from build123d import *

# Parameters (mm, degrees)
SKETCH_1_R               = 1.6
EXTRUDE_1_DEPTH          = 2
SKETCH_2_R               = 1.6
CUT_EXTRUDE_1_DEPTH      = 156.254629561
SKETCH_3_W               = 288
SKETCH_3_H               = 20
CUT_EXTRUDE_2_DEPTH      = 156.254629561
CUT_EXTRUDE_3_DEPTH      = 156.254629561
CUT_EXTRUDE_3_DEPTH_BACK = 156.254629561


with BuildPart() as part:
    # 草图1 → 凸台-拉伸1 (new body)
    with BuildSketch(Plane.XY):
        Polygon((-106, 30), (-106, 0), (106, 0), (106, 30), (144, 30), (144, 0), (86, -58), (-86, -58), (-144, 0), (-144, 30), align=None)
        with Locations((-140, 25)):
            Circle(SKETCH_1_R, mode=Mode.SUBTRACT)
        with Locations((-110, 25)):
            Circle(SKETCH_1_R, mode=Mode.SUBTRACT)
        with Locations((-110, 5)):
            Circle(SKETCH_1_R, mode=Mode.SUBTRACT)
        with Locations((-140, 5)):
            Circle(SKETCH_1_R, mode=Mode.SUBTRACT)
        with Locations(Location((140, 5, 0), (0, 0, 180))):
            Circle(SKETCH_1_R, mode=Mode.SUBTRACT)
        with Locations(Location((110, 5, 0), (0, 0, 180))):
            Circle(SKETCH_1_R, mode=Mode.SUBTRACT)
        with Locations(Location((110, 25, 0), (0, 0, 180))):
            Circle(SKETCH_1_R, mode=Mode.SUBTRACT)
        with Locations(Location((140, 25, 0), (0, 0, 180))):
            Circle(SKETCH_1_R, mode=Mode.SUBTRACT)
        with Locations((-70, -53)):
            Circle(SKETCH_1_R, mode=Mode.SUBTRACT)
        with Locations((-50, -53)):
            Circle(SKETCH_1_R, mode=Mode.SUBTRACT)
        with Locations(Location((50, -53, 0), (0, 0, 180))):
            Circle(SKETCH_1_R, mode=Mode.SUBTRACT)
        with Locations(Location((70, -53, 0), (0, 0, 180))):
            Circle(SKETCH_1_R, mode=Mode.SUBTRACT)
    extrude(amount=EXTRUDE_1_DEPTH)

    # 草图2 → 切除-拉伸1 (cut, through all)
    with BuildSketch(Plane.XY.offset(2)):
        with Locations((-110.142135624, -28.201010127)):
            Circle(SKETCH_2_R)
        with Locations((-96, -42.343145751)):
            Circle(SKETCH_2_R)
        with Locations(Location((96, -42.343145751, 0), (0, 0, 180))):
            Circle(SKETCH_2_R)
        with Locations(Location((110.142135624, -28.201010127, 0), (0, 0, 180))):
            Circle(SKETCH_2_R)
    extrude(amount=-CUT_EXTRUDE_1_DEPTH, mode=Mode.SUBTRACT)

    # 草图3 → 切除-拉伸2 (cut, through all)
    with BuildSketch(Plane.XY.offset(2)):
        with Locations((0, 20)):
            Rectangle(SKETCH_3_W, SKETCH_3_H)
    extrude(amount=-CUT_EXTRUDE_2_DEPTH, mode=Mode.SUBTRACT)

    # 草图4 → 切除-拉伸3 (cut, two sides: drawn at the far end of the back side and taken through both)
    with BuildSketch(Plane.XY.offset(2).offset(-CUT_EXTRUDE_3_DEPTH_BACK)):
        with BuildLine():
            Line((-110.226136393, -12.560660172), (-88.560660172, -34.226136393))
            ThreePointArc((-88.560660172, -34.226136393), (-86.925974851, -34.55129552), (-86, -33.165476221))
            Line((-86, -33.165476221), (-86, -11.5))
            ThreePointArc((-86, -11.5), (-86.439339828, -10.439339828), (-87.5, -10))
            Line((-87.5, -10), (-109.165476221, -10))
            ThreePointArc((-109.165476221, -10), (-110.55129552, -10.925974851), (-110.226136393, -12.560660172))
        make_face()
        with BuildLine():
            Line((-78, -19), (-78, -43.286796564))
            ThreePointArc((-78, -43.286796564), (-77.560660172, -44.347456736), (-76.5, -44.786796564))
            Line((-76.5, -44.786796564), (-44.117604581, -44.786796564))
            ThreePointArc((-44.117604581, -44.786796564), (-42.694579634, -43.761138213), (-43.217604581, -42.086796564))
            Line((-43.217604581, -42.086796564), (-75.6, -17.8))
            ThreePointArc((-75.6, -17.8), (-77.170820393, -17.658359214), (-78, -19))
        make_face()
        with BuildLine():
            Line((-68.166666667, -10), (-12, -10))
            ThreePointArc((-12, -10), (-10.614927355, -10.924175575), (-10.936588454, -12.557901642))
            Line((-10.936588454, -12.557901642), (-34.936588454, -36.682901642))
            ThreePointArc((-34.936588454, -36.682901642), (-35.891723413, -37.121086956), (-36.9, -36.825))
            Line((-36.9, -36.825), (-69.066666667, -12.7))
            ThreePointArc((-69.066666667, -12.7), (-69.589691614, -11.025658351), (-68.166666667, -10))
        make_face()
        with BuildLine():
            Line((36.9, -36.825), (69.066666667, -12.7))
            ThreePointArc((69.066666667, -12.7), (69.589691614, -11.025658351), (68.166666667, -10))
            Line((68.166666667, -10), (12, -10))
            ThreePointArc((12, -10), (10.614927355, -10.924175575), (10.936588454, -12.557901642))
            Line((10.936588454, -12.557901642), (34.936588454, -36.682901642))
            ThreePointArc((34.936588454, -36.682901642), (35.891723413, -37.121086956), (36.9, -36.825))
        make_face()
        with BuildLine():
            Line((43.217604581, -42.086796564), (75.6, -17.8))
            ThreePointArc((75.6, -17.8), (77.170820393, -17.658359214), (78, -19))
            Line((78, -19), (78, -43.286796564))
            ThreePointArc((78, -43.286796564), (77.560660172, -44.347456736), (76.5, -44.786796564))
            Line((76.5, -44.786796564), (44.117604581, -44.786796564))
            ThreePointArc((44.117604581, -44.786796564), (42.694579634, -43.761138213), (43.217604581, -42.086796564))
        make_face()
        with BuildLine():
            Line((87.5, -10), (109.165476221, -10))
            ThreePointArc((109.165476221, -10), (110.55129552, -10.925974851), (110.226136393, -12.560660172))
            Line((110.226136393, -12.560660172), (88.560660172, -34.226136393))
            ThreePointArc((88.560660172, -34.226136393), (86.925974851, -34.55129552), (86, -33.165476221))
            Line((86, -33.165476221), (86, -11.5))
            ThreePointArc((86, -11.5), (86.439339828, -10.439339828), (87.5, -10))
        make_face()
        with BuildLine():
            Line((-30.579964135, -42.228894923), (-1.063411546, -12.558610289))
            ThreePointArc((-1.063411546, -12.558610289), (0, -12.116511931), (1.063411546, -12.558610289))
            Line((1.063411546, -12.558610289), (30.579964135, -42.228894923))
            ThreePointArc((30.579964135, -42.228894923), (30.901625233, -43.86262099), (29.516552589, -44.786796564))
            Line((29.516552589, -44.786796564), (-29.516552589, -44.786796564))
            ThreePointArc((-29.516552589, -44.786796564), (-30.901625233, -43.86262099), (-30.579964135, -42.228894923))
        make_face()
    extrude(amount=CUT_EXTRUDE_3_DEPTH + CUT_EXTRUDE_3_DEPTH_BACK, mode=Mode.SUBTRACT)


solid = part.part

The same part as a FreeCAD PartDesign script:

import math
import FreeCAD as App
import Part
import Sketcher
Q = App.Units.Quantity


def add_polygon(sketch, points):
    """Adds a closed chain of lines whose ends are joined by coincident constraints."""
    first, n = sketch.GeometryCount, len(points)
    for a, b in zip(points, points[1:] + points[:1]):
        sketch.addGeometry(Part.LineSegment(App.Vector(*a, 0), App.Vector(*b, 0)), False)
    for i in range(n):
        sketch.addConstraint(Sketcher.Constraint("Coincident", first + i, 2, first + (i + 1) % n, 1))

doc = App.newDocument("Part")
params = doc.addObject("Spreadsheet::Sheet", "Params")
for row, (alias, value) in enumerate([
    ("sketch1_diameter", "3.2 mm"),
    ("sketch1_width", "38 mm"),
    ("sketch1_width2", "172 mm"),
    ("sketch1_width3", "212 mm"),
    ("sketch1_height", "30 mm"),
    ("pad1_length", "2 mm"),
    ("sketch2_diameter", "3.2 mm"),
    ("sketch3_width", "288 mm"),
    ("sketch3_height", "20 mm"),
    ("sketch4_radius", "1.5 mm"),
], start=1):
    params.set(f"A{row}", alias)
    params.set(f"B{row}", "=" + value)
    params.setAlias(f"B{row}", alias)

body = doc.addObject("PartDesign::Body", "Body")

sketch1 = body.newObject("Sketcher::SketchObject", "Sketch")
sketch1.AttachmentSupport = (doc.getObject("XY_Plane"), [""])
sketch1.MapMode = "FlatFace"
add_polygon(sketch1, [(-106, 0), (-106, 30), (-144, 30), (-144, 0), (-86, -58), (86, -58), (144, 0), (144, 30), (106, 30), (106, 0)])
sketch1.addGeometry(Part.Circle(App.Vector(70, -53, 0), App.Vector(0, 0, 1), 1.6), False)
sketch1.addGeometry(Part.Circle(App.Vector(50, -53, 0), App.Vector(0, 0, 1), 1.6), False)
sketch1.addGeometry(Part.Circle(App.Vector(-50, -53, 0), App.Vector(0, 0, 1), 1.6), False)
sketch1.addGeometry(Part.Circle(App.Vector(-70, -53, 0), App.Vector(0, 0, 1), 1.6), False)
sketch1.addGeometry(Part.Circle(App.Vector(140, 5, 0), App.Vector(0, 0, 1), 1.6), False)
sketch1.addGeometry(Part.Circle(App.Vector(110, 5, 0), App.Vector(0, 0, 1), 1.6), False)
sketch1.addGeometry(Part.Circle(App.Vector(140, 25, 0), App.Vector(0, 0, 1), 1.6), False)
sketch1.addGeometry(Part.Circle(App.Vector(110, 25, 0), App.Vector(0, 0, 1), 1.6), False)
sketch1.addGeometry(Part.Circle(App.Vector(-110, 5, 0), App.Vector(0, 0, 1), 1.6), False)
sketch1.addGeometry(Part.Circle(App.Vector(-140, 5, 0), App.Vector(0, 0, 1), 1.6), False)
sketch1.addGeometry(Part.Circle(App.Vector(-110, 25, 0), App.Vector(0, 0, 1), 1.6), False)
sketch1.addGeometry(Part.Circle(App.Vector(-140, 25, 0), App.Vector(0, 0, 1), 1.6), False)
sketch1.addConstraint([
    Sketcher.Constraint("Vertical", 0),
    Sketcher.Constraint("Horizontal", 1),
    Sketcher.Constraint("Vertical", 2),
    Sketcher.Constraint("Horizontal", 4),
    Sketcher.Constraint("Vertical", 6),
    Sketcher.Constraint("Horizontal", 7),
    Sketcher.Constraint("Vertical", 8),
    Sketcher.Constraint("Horizontal", 9),
    Sketcher.Constraint("Equal", 10, 11),
    Sketcher.Constraint("Equal", 11, 12),
    Sketcher.Constraint("Equal", 12, 13),
    Sketcher.Constraint("Equal", 13, 14),
    Sketcher.Constraint("Equal", 14, 15),
    Sketcher.Constraint("Equal", 15, 16),
    Sketcher.Constraint("Equal", 16, 17),
    Sketcher.Constraint("Equal", 17, 18),
    Sketcher.Constraint("Equal", 18, 19),
    Sketcher.Constraint("Equal", 19, 20),
    Sketcher.Constraint("Equal", 20, 21),
    Sketcher.Constraint("Symmetric", 2, 2, 5, 2, -1, 1),
    Sketcher.Constraint("Symmetric", 8, 2, 9, 2, -1, 1),
    Sketcher.Constraint("Symmetric", 11, 3, 12, 3, -2),
    Sketcher.Constraint("Symmetric", 10, 3, 13, 3, -2),
    Sketcher.Constraint("Symmetric", 15, 3, 18, 3, -2),
    Sketcher.Constraint("Symmetric", 14, 3, 19, 3, -2),
    Sketcher.Constraint("Symmetric", 17, 3, 20, 3, -2),
    Sketcher.Constraint("Symmetric", 16, 3, 21, 3, -2),
    Sketcher.Constraint("PointOnObject", 2, 2, -1),
    Sketcher.Constraint("Perpendicular", 3, 5),
    Sketcher.Constraint("Horizontal", 10, 3, 11, 3),
    Sketcher.Constraint("Horizontal", 14, 3, 15, 3),
    Sketcher.Constraint("Horizontal", 16, 3, 17, 3),
    Sketcher.Constraint("Horizontal", 1, 2, 6, 2),
    Sketcher.Constraint("Vertical", 14, 3, 16, 3),
    Sketcher.Constraint("Vertical", 15, 3, 17, 3),
    Sketcher.Constraint("Equal", 3, 5),
    Sketcher.Constraint("Diameter", 10, Q("3.2 mm")),
    Sketcher.Constraint("DistanceX", 1, 2, 1, 1, Q("38 mm")),
    Sketcher.Constraint("DistanceX", 4, 1, 4, 2, Q("172 mm")),
    Sketcher.Constraint("DistanceX", 9, 2, 9, 1, Q("212 mm")),
    Sketcher.Constraint("DistanceY", 0, 1, 0, 2, Q("30 mm")),
    Sketcher.Constraint("DistanceX", -1, 1, 10, 3, Q("70 mm")),
    Sketcher.Constraint("DistanceY", 10, 3, -1, 1, Q("53 mm")),
    Sketcher.Constraint("DistanceX", -1, 1, 11, 3, Q("50 mm")),
    Sketcher.Constraint("DistanceX", -1, 1, 14, 3, Q("140 mm")),
    Sketcher.Constraint("DistanceY", -1, 1, 14, 3, Q("5 mm")),
    Sketcher.Constraint("DistanceX", -1, 1, 15, 3, Q("110 mm")),
    Sketcher.Constraint("DistanceY", -1, 1, 16, 3, Q("25 mm")),
])
sketch1.setExpression("Constraints[46]", "Params.sketch1_diameter")
sketch1.setExpression("Constraints[47]", "Params.sketch1_width")
sketch1.setExpression("Constraints[48]", "Params.sketch1_width2")
sketch1.setExpression("Constraints[49]", "Params.sketch1_width3")
sketch1.setExpression("Constraints[50]", "Params.sketch1_height")
pad1 = body.newObject("PartDesign::Pad", "Pad")
pad1.Profile = sketch1
pad1.setExpression("Length", "Params.pad1_length")

sketch2 = body.newObject("Sketcher::SketchObject", "Sketch001")
sketch2.AttachmentSupport = (doc.getObject("XY_Plane"), [""])
sketch2.MapMode = "FlatFace"
sketch2.AttachmentOffset = App.Placement(App.Vector(0, 0, 2), App.Rotation())
sketch2.addGeometry([
    Part.Circle(App.Vector(-110.142136, -28.20101, 0), App.Vector(0, 0, 1), 1.6),
    Part.Circle(App.Vector(-96, -42.343146, 0), App.Vector(0, 0, 1), 1.6),
    Part.Circle(App.Vector(96, -42.343146, 0), App.Vector(0, 0, 1), 1.6),
    Part.Circle(App.Vector(110.142136, -28.20101, 0), App.Vector(0, 0, 1), 1.6),
], False)
sketch2.addConstraint([
    Sketcher.Constraint("Equal", 0, 1),
    Sketcher.Constraint("Equal", 1, 2),
    Sketcher.Constraint("Equal", 2, 3),
    Sketcher.Constraint("Symmetric", 1, 3, 2, 3, -2),
    Sketcher.Constraint("Symmetric", 0, 3, 3, 3, -2),
    Sketcher.Constraint("Diameter", 0, Q("3.2 mm")),
    Sketcher.Constraint("DistanceX", 1, 3, -1, 1, Q("96 mm")),
    Sketcher.Constraint("DistanceY", 0, 3, -1, 1, Q("28.20101 mm")),
    Sketcher.Constraint("DistanceX", 0, 3, 3, 3, Q("220.284271 mm")),
    Sketcher.Constraint("DistanceY", 1, 3, -1, 1, Q("42.343146 mm")),
])
sketch2.setExpression("Constraints[5]", "Params.sketch2_diameter")
pocket1 = body.newObject("PartDesign::Pocket", "Pocket")
pocket1.Profile = sketch2
pocket1.Type = "ThroughAll"

sketch3 = body.newObject("Sketcher::SketchObject", "Sketch002")
sketch3.AttachmentSupport = (doc.getObject("XY_Plane"), [""])
sketch3.MapMode = "FlatFace"
sketch3.AttachmentOffset = App.Placement(App.Vector(0, 0, 2), App.Rotation())
add_polygon(sketch3, [(-144, 30), (-144, 10), (144, 10), (144, 30)])
sketch3.addConstraint([
    Sketcher.Constraint("Vertical", 0),
    Sketcher.Constraint("Horizontal", 1),
    Sketcher.Constraint("Vertical", 2),
    Sketcher.Constraint("Horizontal", 3),
    Sketcher.Constraint("DistanceX", 1, 1, 1, 2, Q("288 mm")),
    Sketcher.Constraint("DistanceY", 0, 2, 0, 1, Q("20 mm")),
    Sketcher.Constraint("DistanceX", 0, 2, -1, 1, Q("144 mm")),
    Sketcher.Constraint("DistanceY", -1, 1, 0, 2, Q("10 mm")),
])
sketch3.setExpression("Constraints[8]", "Params.sketch3_width")
sketch3.setExpression("Constraints[9]", "Params.sketch3_height")
pocket2 = body.newObject("PartDesign::Pocket", "Pocket001")
pocket2.Profile = sketch3
pocket2.Type = "ThroughAll"

sketch4 = body.newObject("Sketcher::SketchObject", "Sketch003")
sketch4.AttachmentSupport = (doc.getObject("XY_Plane"), [""])
sketch4.MapMode = "FlatFace"
sketch4.AttachmentOffset = App.Placement(App.Vector(0, 0, 2), App.Rotation())
sketch4.addGeometry([
    Part.LineSegment(App.Vector(-110.226136, -12.56066, 0), App.Vector(-88.56066, -34.226136, 0)),
    Part.ArcOfCircle(Part.Circle(App.Vector(-87.5, -33.165476, 0), App.Vector(0, 0, 1), 1.5), math.radians(-135), math.radians(0)),
    Part.LineSegment(App.Vector(-86, -33.165476, 0), App.Vector(-86, -11.5, 0)),
    Part.ArcOfCircle(Part.Circle(App.Vector(-87.5, -11.5, 0), App.Vector(0, 0, 1), 1.5), math.radians(0), math.radians(90)),
    Part.LineSegment(App.Vector(-87.5, -10, 0), App.Vector(-109.165476, -10, 0)),
    Part.ArcOfCircle(Part.Circle(App.Vector(-109.165476, -11.5, 0), App.Vector(0, 0, 1), 1.5), math.radians(90), math.radians(225)),
    Part.LineSegment(App.Vector(-78, -19, 0), App.Vector(-78, -43.286797, 0)),
    Part.ArcOfCircle(Part.Circle(App.Vector(-76.5, -43.286797, 0), App.Vector(0, 0, 1), 1.5), math.radians(180), math.radians(270)),
    Part.LineSegment(App.Vector(-76.5, -44.786797, 0), App.Vector(-44.117605, -44.786797, 0)),
    Part.ArcOfCircle(Part.Circle(App.Vector(-44.117605, -43.286797, 0), App.Vector(0, 0, 1), 1.5), math.radians(-90), math.radians(53.130102)),
    Part.LineSegment(App.Vector(-43.217605, -42.086797, 0), App.Vector(-75.6, -17.8, 0)),
    Part.ArcOfCircle(Part.Circle(App.Vector(-76.5, -19, 0), App.Vector(0, 0, 1), 1.5), math.radians(53.130102), math.radians(180)),
    Part.LineSegment(App.Vector(-12, -10, 0), App.Vector(-68.166667, -10, 0)),
    Part.ArcOfCircle(Part.Circle(App.Vector(-68.166667, -11.5, 0), App.Vector(0, 0, 1), 1.5), math.radians(90), math.radians(233.130102)),
    Part.LineSegment(App.Vector(-69.066667, -12.7, 0), App.Vector(-36.9, -36.825, 0)),
    Part.ArcOfCircle(Part.Circle(App.Vector(-36, -35.625, 0), App.Vector(0, 0, 1), 1.5), math.radians(-126.869898), math.radians(-44.85118)),
    Part.LineSegment(App.Vector(-34.936588, -36.682902, 0), App.Vector(-10.936588, -12.557902, 0)),
    Part.ArcOfCircle(Part.Circle(App.Vector(-12, -11.5, 0), App.Vector(0, 0, 1), 1.5), math.radians(-44.85118), math.radians(90)),
    Part.LineSegment(App.Vector(36.9, -36.825, 0), App.Vector(69.066667, -12.7, 0)),
    Part.ArcOfCircle(Part.Circle(App.Vector(68.166667, -11.5, 0), App.Vector(0, 0, 1), 1.5), math.radians(-53.130102), math.radians(90)),
    Part.LineSegment(App.Vector(68.166667, -10, 0), App.Vector(12, -10, 0)),
    Part.ArcOfCircle(Part.Circle(App.Vector(12, -11.5, 0), App.Vector(0, 0, 1), 1.5), math.radians(90), math.radians(224.85118)),
    Part.LineSegment(App.Vector(10.936588, -12.557902, 0), App.Vector(34.936588, -36.682902, 0)),
    Part.ArcOfCircle(Part.Circle(App.Vector(36, -35.625, 0), App.Vector(0, 0, 1), 1.5), math.radians(-135.14882), math.radians(-53.130102)),
    Part.LineSegment(App.Vector(75.6, -17.8, 0), App.Vector(43.217605, -42.086797, 0)),
    Part.ArcOfCircle(Part.Circle(App.Vector(44.117605, -43.286797, 0), App.Vector(0, 0, 1), 1.5), math.radians(126.869898), math.radians(270)),
    Part.LineSegment(App.Vector(44.117605, -44.786797, 0), App.Vector(76.5, -44.786797, 0)),
    Part.ArcOfCircle(Part.Circle(App.Vector(76.5, -43.286797, 0), App.Vector(0, 0, 1), 1.5), math.radians(-90), math.radians(0)),
    Part.LineSegment(App.Vector(78, -43.286797, 0), App.Vector(78, -19, 0)),
    Part.ArcOfCircle(Part.Circle(App.Vector(76.5, -19, 0), App.Vector(0, 0, 1), 1.5), math.radians(0), math.radians(126.869898)),
    Part.LineSegment(App.Vector(109.165476, -10, 0), App.Vector(87.5, -10, 0)),
    Part.ArcOfCircle(Part.Circle(App.Vector(87.5, -11.5, 0), App.Vector(0, 0, 1), 1.5), math.radians(90), math.radians(180)),
    Part.LineSegment(App.Vector(86, -11.5, 0), App.Vector(86, -33.165476, 0)),
    Part.ArcOfCircle(Part.Circle(App.Vector(87.5, -33.165476, 0), App.Vector(0, 0, 1), 1.5), math.radians(180), math.radians(315)),
    Part.LineSegment(App.Vector(88.56066, -34.226136, 0), App.Vector(110.226136, -12.56066, 0)),
    Part.ArcOfCircle(Part.Circle(App.Vector(109.165476, -11.5, 0), App.Vector(0, 0, 1), 1.5), math.radians(-45), math.radians(90)),
    Part.LineSegment(App.Vector(-1.063412, -12.55861, 0), App.Vector(-30.579964, -42.228895, 0)),
    Part.ArcOfCircle(Part.Circle(App.Vector(-29.516553, -43.286797, 0), App.Vector(0, 0, 1), 1.5), math.radians(135.14882), math.radians(270)),
    Part.LineSegment(App.Vector(-29.516553, -44.786797, 0), App.Vector(29.516553, -44.786797, 0)),
    Part.ArcOfCircle(Part.Circle(App.Vector(29.516553, -43.286797, 0), App.Vector(0, 0, 1), 1.5), math.radians(-90), math.radians(44.85118)),
    Part.LineSegment(App.Vector(30.579964, -42.228895, 0), App.Vector(1.063412, -12.55861, 0)),
    Part.ArcOfCircle(Part.Circle(App.Vector(0, -13.616512, 0), App.Vector(0, 0, 1), 1.5), math.radians(44.85118), math.radians(135.14882)),
], False)
sketch4.addConstraint([
    Sketcher.Constraint("Tangent", 0, 2, 1, 1),
    Sketcher.Constraint("Tangent", 1, 2, 2, 1),
    Sketcher.Constraint("Tangent", 2, 2, 3, 1),
    Sketcher.Constraint("Tangent", 3, 2, 4, 1),
    Sketcher.Constraint("Tangent", 4, 2, 5, 1),
    Sketcher.Constraint("Tangent", 5, 2, 0, 1),
    Sketcher.Constraint("Tangent", 6, 2, 7, 1),
    Sketcher.Constraint("Tangent", 7, 2, 8, 1),
    Sketcher.Constraint("Tangent", 8, 2, 9, 1),
    Sketcher.Constraint("Tangent", 9, 2, 10, 1),
    Sketcher.Constraint("Tangent", 10, 2, 11, 1),
    Sketcher.Constraint("Tangent", 11, 2, 6, 1),
    Sketcher.Constraint("Tangent", 12, 2, 13, 1),
    Sketcher.Constraint("Tangent", 13, 2, 14, 1),
    Sketcher.Constraint("Tangent", 14, 2, 15, 1),
    Sketcher.Constraint("Tangent", 15, 2, 16, 1),
    Sketcher.Constraint("Tangent", 16, 2, 17, 1),
    Sketcher.Constraint("Tangent", 17, 2, 12, 1),
    Sketcher.Constraint("Tangent", 18, 2, 19, 1),
    Sketcher.Constraint("Tangent", 19, 2, 20, 1),
    Sketcher.Constraint("Tangent", 20, 2, 21, 1),
    Sketcher.Constraint("Tangent", 21, 2, 22, 1),
    Sketcher.Constraint("Tangent", 22, 2, 23, 1),
    Sketcher.Constraint("Tangent", 23, 2, 18, 1),
    Sketcher.Constraint("Tangent", 24, 2, 25, 1),
    Sketcher.Constraint("Tangent", 25, 2, 26, 1),
    Sketcher.Constraint("Tangent", 26, 2, 27, 1),
    Sketcher.Constraint("Tangent", 27, 2, 28, 1),
    Sketcher.Constraint("Tangent", 28, 2, 29, 1),
    Sketcher.Constraint("Tangent", 29, 2, 24, 1),
    Sketcher.Constraint("Tangent", 30, 2, 31, 1),
    Sketcher.Constraint("Tangent", 31, 2, 32, 1),
    Sketcher.Constraint("Tangent", 32, 2, 33, 1),
    Sketcher.Constraint("Tangent", 33, 2, 34, 1),
    Sketcher.Constraint("Tangent", 34, 2, 35, 1),
    Sketcher.Constraint("Tangent", 35, 2, 30, 1),
    Sketcher.Constraint("Tangent", 36, 2, 37, 1),
    Sketcher.Constraint("Tangent", 37, 2, 38, 1),
    Sketcher.Constraint("Tangent", 38, 2, 39, 1),
    Sketcher.Constraint("Tangent", 39, 2, 40, 1),
    Sketcher.Constraint("Tangent", 40, 2, 41, 1),
    Sketcher.Constraint("Tangent", 41, 2, 36, 1),
    Sketcher.Constraint("Vertical", 2),
    Sketcher.Constraint("Horizontal", 4),
    Sketcher.Constraint("Vertical", 6),
    Sketcher.Constraint("Horizontal", 8),
    Sketcher.Constraint("Horizontal", 12),
    Sketcher.Constraint("Horizontal", 20),
    Sketcher.Constraint("Horizontal", 26),
    Sketcher.Constraint("Vertical", 28),
    Sketcher.Constraint("Horizontal", 30),
    Sketcher.Constraint("Vertical", 32),
    Sketcher.Constraint("Horizontal", 38),
    Sketcher.Constraint("Equal", 1, 3),
    Sketcher.Constraint("Equal", 3, 5),
    Sketcher.Constraint("Equal", 5, 7),
    Sketcher.Constraint("Equal", 7, 9),
    Sketcher.Constraint("Equal", 9, 11),
    Sketcher.Constraint("Equal", 11, 13),
    Sketcher.Constraint("Equal", 13, 15),
    Sketcher.Constraint("Equal", 15, 17),
    Sketcher.Constraint("Equal", 17, 19),
    Sketcher.Constraint("Equal", 19, 21),
    Sketcher.Constraint("Equal", 21, 23),
    Sketcher.Constraint("Equal", 23, 25),
    Sketcher.Constraint("Equal", 25, 27),
    Sketcher.Constraint("Equal", 27, 29),
    Sketcher.Constraint("Equal", 29, 31),
    Sketcher.Constraint("Equal", 31, 33),
    Sketcher.Constraint("Equal", 33, 35),
    Sketcher.Constraint("Equal", 35, 37),
    Sketcher.Constraint("Equal", 37, 39),
    Sketcher.Constraint("Equal", 39, 41),
    Sketcher.Constraint("Symmetric", 13, 3, 19, 3, -2),
    Sketcher.Constraint("Symmetric", 15, 3, 23, 3, -2),
    Sketcher.Constraint("Symmetric", 9, 3, 25, 3, -2),
    Sketcher.Constraint("Symmetric", 11, 3, 29, 3, -2),
    Sketcher.Constraint("Symmetric", 3, 3, 31, 3, -2),
    Sketcher.Constraint("Symmetric", 0, 2, 33, 2, -2),
    Sketcher.Constraint("Symmetric", 36, 2, 39, 2, -2),
    Sketcher.Constraint("Parallel", 10, 14),
    Sketcher.Constraint("Perpendicular", 0, 34),
    Sketcher.Constraint("Parallel", 16, 36),
    Sketcher.Constraint("Parallel", 22, 40),
    Sketcher.Constraint("Horizontal", 5, 3, 13, 3),
    Sketcher.Constraint("Horizontal", 27, 3, 37, 3),
    Sketcher.Constraint("Radius", 1, Q("1.5 mm")),
    Sketcher.Constraint("DistanceY", 11, 3, -1, 1, Q("19 mm")),
    Sketcher.Constraint("DistanceX", 15, 3, -1, 1, Q("36 mm")),
    Sketcher.Constraint("DistanceX", 17, 3, -1, 1, Q("12 mm")),
    Sketcher.Constraint("DistanceX", 1, 2, -1, 1, Q("86 mm")),
    Sketcher.Constraint("DistanceY", 3, 2, -1, 1, Q("10 mm")),
    Sketcher.Constraint("DistanceX", 6, 2, -1, 1, Q("78 mm")),
    Sketcher.Constraint("DistanceX", 10, 2, -1, 1, Q("75.6 mm")),
    Sketcher.Constraint("DistanceY", 15, 3, -1, 1, Q("35.625 mm")),
    Sketcher.Constraint("Distance", 0, Q("30.63961 mm")),
    Sketcher.Constraint("DistanceX", 8, 1, 8, 2, Q("32.382395 mm")),
    Sketcher.Constraint("DistanceX", 38, 1, 38, 2, Q("59.033105 mm")),
])
sketch4.setExpression("Constraints[86]", "Params.sketch4_radius")
pocket3 = body.newObject("PartDesign::Pocket", "Pocket002")
pocket3.Profile = sketch4
pocket3.Type = "ThroughAll"
pocket3.Midplane = True

doc.recompute()
